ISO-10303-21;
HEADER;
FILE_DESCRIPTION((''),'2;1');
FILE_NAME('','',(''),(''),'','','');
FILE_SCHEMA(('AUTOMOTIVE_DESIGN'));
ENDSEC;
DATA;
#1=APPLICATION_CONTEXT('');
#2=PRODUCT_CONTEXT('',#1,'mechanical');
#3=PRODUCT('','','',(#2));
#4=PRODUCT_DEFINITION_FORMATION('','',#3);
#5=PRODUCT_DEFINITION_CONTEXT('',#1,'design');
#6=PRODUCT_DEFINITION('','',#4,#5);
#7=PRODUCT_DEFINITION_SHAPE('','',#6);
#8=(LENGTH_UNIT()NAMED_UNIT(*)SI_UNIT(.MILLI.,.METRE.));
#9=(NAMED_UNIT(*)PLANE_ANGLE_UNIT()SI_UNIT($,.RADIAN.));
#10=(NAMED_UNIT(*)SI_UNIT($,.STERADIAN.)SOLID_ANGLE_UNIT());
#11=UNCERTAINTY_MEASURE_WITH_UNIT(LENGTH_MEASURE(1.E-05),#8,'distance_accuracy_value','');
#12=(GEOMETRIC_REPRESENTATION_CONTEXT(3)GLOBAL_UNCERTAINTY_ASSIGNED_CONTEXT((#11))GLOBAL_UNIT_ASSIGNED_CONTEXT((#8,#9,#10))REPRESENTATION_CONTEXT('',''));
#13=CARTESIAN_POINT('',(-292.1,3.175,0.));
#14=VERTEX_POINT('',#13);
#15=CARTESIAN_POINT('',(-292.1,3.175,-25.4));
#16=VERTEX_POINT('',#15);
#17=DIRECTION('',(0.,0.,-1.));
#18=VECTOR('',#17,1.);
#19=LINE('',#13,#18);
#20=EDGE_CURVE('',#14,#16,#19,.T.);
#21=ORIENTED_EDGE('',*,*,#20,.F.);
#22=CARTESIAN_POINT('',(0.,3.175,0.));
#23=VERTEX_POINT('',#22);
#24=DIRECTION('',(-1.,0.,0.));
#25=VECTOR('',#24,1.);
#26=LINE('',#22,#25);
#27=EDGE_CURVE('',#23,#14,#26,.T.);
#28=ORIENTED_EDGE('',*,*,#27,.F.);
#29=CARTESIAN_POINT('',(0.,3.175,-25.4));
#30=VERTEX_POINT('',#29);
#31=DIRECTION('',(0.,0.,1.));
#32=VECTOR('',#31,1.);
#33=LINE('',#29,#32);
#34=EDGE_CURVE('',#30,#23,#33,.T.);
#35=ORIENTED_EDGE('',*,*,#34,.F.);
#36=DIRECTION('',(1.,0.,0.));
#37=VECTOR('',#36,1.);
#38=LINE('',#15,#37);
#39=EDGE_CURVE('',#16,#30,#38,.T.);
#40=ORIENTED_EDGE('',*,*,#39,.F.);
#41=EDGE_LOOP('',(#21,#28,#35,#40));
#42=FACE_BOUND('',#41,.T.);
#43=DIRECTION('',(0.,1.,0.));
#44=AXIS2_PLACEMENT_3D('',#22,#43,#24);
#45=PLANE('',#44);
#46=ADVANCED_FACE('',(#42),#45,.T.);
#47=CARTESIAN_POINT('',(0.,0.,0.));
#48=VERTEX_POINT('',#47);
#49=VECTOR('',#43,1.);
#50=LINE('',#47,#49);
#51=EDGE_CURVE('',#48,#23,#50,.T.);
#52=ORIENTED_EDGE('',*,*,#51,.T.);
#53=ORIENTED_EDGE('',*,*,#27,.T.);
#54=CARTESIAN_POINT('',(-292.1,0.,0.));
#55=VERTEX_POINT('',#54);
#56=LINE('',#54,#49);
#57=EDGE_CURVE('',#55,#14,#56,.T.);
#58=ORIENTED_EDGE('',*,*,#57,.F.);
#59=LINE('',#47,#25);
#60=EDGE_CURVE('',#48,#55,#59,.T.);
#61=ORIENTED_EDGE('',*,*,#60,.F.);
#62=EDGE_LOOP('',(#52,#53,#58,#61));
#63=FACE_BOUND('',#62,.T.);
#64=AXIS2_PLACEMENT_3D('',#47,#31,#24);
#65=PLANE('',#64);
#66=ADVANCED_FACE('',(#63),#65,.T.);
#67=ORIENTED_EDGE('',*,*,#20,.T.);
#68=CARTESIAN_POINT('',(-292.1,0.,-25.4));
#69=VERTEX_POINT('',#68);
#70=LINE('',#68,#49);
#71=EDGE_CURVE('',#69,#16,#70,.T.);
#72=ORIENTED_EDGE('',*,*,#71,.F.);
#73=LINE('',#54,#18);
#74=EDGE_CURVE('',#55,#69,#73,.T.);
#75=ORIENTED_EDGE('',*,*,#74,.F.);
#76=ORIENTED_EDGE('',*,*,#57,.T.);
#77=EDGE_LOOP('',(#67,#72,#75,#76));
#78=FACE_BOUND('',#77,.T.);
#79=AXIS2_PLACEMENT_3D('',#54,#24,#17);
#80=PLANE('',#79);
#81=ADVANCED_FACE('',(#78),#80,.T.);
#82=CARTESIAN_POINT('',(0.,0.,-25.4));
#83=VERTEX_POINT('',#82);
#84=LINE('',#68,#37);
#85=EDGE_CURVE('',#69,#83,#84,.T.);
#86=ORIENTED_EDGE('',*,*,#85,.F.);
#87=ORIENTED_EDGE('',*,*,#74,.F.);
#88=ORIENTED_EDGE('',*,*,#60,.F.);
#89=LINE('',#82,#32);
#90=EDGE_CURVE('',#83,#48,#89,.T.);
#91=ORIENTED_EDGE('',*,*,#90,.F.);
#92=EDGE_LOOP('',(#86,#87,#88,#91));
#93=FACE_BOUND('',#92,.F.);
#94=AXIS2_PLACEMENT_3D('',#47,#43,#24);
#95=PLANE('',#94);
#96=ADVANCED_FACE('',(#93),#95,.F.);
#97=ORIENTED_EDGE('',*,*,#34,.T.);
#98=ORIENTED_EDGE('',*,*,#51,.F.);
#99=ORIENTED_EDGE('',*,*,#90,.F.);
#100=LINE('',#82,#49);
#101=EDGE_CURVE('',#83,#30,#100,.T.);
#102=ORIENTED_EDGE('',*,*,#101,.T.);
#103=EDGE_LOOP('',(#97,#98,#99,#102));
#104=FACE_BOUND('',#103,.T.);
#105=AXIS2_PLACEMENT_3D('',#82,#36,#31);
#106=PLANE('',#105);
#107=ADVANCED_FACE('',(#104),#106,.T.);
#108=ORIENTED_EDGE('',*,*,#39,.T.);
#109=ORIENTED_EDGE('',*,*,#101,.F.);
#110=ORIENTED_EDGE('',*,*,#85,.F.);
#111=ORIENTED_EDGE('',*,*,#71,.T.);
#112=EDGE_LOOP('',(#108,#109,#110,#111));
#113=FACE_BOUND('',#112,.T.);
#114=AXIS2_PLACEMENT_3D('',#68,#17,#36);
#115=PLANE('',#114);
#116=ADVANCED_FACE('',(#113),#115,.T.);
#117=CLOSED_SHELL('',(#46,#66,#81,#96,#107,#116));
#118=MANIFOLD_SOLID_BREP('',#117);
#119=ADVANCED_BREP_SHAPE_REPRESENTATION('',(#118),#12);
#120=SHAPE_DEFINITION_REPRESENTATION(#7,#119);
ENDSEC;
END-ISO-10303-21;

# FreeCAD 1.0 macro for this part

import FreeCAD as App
import Part
import Sketcher
Q = App.Units.Quantity


def add_polygon(sketch, points):
    """Adds a closed chain of lines whose ends are joined by coincident constraints."""
    first, n = sketch.GeometryCount, len(points)
    for a, b in zip(points, points[1:] + points[:1]):
        sketch.addGeometry(Part.LineSegment(App.Vector(*a, 0), App.Vector(*b, 0)), False)
    for i in range(n):
        sketch.addConstraint(Sketcher.Constraint("Coincident", first + i, 2, first + (i + 1) % n, 1))

doc = App.newDocument("Part")
params = doc.addObject("Spreadsheet::Sheet", "Params")
for row, (alias, value) in enumerate([
    ("sketch1_height", "1 in"),
    ("sketch1_width", "11.5 in"),
    ("pad1_length", "0.125 in"),
], start=1):
    params.set(f"A{row}", alias)
    params.set(f"B{row}", "=" + value)
    params.setAlias(f"B{row}", alias)

body = doc.addObject("PartDesign::Body", "Body")

# Sketch on XZ plane
sketch1 = doc.addObject("Sketcher::SketchObject", "Sketch")
body.addObject(sketch1)
sketch1.AttachmentSupport = (doc.XZ_Plane, [""])
sketch1.MapMode = "FlatFace"
add_polygon(sketch1, [(-292.1, 0), (0, 0), (0, -25.4), (-292.1, -25.4)])  # lines 0-3
sketch1.addConstraint([
    Sketcher.Constraint("Horizontal", 0),
    Sketcher.Constraint("Vertical", 1),
    Sketcher.Constraint("Horizontal", 2),
    Sketcher.Constraint("Vertical", 3),
    Sketcher.Constraint("Coincident", 0, 2, -1, 1),
    Sketcher.Constraint("DistanceY", 1, 2, 1, 1, Q("1 in")),
    Sketcher.Constraint("DistanceX", 0, 1, 0, 2, Q("11.5 in")),
])
sketch1.setExpression("Constraints[9]", "Params.sketch1_height")
sketch1.setExpression("Constraints[10]", "Params.sketch1_width")
pad1 = doc.addObject("PartDesign::Pad", "Pad")
body.addObject(pad1)
pad1.Profile = sketch1
pad1.setExpression("Length", "Params.pad1_length")
pad1.Reversed = True

doc.recompute()
